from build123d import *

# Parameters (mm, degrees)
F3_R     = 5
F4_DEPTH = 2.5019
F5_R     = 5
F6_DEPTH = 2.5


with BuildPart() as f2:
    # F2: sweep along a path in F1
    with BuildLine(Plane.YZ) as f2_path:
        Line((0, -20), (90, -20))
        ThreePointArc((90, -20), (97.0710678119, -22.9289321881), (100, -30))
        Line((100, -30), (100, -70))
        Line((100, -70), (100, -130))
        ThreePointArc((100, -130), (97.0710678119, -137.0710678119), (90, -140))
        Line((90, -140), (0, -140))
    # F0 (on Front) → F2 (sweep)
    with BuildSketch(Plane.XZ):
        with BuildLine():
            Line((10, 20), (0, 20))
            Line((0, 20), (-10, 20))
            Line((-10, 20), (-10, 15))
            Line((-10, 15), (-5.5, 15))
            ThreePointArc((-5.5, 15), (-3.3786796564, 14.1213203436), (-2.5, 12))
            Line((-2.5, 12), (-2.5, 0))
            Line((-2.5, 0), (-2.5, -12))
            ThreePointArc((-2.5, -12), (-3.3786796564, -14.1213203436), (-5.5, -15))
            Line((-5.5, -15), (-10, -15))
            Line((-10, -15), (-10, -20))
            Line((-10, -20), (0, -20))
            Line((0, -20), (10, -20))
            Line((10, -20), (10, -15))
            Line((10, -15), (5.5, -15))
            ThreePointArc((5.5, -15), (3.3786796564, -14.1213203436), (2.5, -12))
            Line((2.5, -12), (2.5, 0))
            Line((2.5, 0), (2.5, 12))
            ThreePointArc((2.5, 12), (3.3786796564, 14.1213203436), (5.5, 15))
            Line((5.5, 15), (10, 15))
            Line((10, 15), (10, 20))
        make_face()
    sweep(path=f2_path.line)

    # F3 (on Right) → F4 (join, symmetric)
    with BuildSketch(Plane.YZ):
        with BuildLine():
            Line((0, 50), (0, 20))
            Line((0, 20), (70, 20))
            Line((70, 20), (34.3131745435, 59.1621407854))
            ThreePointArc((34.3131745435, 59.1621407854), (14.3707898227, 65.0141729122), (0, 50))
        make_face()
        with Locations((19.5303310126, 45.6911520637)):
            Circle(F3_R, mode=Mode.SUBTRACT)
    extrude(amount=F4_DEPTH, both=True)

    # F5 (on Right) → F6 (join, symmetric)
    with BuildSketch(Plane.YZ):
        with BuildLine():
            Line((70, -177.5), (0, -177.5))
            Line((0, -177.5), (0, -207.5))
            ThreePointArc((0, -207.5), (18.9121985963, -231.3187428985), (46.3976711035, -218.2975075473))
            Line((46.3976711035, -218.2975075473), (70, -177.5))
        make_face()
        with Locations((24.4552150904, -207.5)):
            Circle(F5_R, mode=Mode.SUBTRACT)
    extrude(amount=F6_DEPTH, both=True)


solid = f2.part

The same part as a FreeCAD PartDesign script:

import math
import FreeCAD as App
import Part
import Sketcher
from FreeCAD import Vector
Q = App.Units.Quantity

doc = App.newDocument("Part")
body = doc.addObject("PartDesign::Body", "Body")

sketch1 = body.newObject("Sketcher::SketchObject", "Sketch")
sketch1.AttachmentSupport = (doc.getObject("XZ_Plane"), [""])
sketch1.MapMode = "FlatFace"
sketch1.addGeometry(Part.LineSegment(Vector(10, 20, 0), Vector(-10, 20, 0)), False)
sketch1.addGeometry(Part.LineSegment(Vector(-10, 20, 0), Vector(-10, 15, 0)), False)
sketch1.addGeometry(Part.LineSegment(Vector(-10, 15, 0), Vector(-5.5, 15, 0)), False)
sketch1.addGeometry(Part.ArcOfCircle(Part.Circle(Vector(-5.5, 12, 0), Vector(0, 0, 1), 3), math.radians(0), math.radians(90)), False)
sketch1.addGeometry(Part.LineSegment(Vector(-2.5, 12, 0), Vector(-2.5, -12, 0)), False)
sketch1.addGeometry(Part.ArcOfCircle(Part.Circle(Vector(-5.5, -12, 0), Vector(0, 0, 1), 3), math.radians(-90), math.radians(0)), False)
sketch1.addGeometry(Part.LineSegment(Vector(-5.5, -15, 0), Vector(-10, -15, 0)), False)
sketch1.addGeometry(Part.LineSegment(Vector(-10, -15, 0), Vector(-10, -20, 0)), False)
sketch1.addGeometry(Part.LineSegment(Vector(-10, -20, 0), Vector(10, -20, 0)), False)
sketch1.addGeometry(Part.LineSegment(Vector(10, -20, 0), Vector(10, -15, 0)), False)
sketch1.addGeometry(Part.LineSegment(Vector(10, -15, 0), Vector(5.5, -15, 0)), False)
sketch1.addGeometry(Part.ArcOfCircle(Part.Circle(Vector(5.5, -12, 0), Vector(0, 0, 1), 3), math.radians(180), math.radians(270)), False)
sketch1.addGeometry(Part.LineSegment(Vector(2.5, -12, 0), Vector(2.5, 12, 0)), False)
sketch1.addGeometry(Part.ArcOfCircle(Part.Circle(Vector(5.5, 12, 0), Vector(0, 0, 1), 3), math.radians(90), math.radians(180)), False)
sketch1.addGeometry(Part.LineSegment(Vector(5.5, 15, 0), Vector(10, 15, 0)), False)
sketch1.addGeometry(Part.LineSegment(Vector(10, 15, 0), Vector(10, 20, 0)), False)
sketch1.addConstraint(Sketcher.Constraint("Coincident", 0, 2, 1, 1))
sketch1.addConstraint(Sketcher.Constraint("Coincident", 1, 2, 2, 1))
sketch1.addConstraint(Sketcher.Constraint("Tangent", 2, 2, 3, 2))
sketch1.addConstraint(Sketcher.Constraint("Tangent", 3, 1, 4, 1))
sketch1.addConstraint(Sketcher.Constraint("Tangent", 4, 2, 5, 2))
sketch1.addConstraint(Sketcher.Constraint("Tangent", 5, 1, 6, 1))
sketch1.addConstraint(Sketcher.Constraint("Coincident", 6, 2, 7, 1))
sketch1.addConstraint(Sketcher.Constraint("Coincident", 7, 2, 8, 1))
sketch1.addConstraint(Sketcher.Constraint("Coincident", 8, 2, 9, 1))
sketch1.addConstraint(Sketcher.Constraint("Coincident", 9, 2, 10, 1))
sketch1.addConstraint(Sketcher.Constraint("Tangent", 10, 2, 11, 2))
sketch1.addConstraint(Sketcher.Constraint("Tangent", 11, 1, 12, 1))
sketch1.addConstraint(Sketcher.Constraint("Tangent", 12, 2, 13, 2))
sketch1.addConstraint(Sketcher.Constraint("Tangent", 13, 1, 14, 1))
sketch1.addConstraint(Sketcher.Constraint("Coincident", 14, 2, 15, 1))
sketch1.addConstraint(Sketcher.Constraint("Coincident", 15, 2, 0, 1))
sketch1.addConstraint(Sketcher.Constraint("Horizontal", 0))
sketch1.addConstraint(Sketcher.Constraint("Vertical", 1))
sketch1.addConstraint(Sketcher.Constraint("Horizontal", 2))
sketch1.addConstraint(Sketcher.Constraint("Vertical", 4))
sketch1.addConstraint(Sketcher.Constraint("Horizontal", 6))
sketch1.addConstraint(Sketcher.Constraint("Vertical", 7))
sketch1.addConstraint(Sketcher.Constraint("Horizontal", 8))
sketch1.addConstraint(Sketcher.Constraint("Vertical", 9))
sketch1.addConstraint(Sketcher.Constraint("Horizontal", 10))
sketch1.addConstraint(Sketcher.Constraint("Vertical", 12))
sketch1.addConstraint(Sketcher.Constraint("Horizontal", 14))
sketch1.addConstraint(Sketcher.Constraint("Vertical", 15))
sketch1.addConstraint(Sketcher.Constraint("Equal", 3, 5))
sketch1.addConstraint(Sketcher.Constraint("Equal", 5, 11))
sketch1.addConstraint(Sketcher.Constraint("Equal", 11, 13))
sketch1.addConstraint(Sketcher.Constraint("Symmetric", 3, 3, 11, 3, -1, 1))
sketch1.addConstraint(Sketcher.Constraint("Symmetric", 0, 2, 8, 2, -1, 1))
sketch1.addConstraint(Sketcher.Constraint("Symmetric", 6, 2, 14, 2, -1, 1))
sketch1.addConstraint(Sketcher.Constraint("Symmetric", 6, 2, 9, 2, -2))
sketch1.addConstraint(Sketcher.Constraint("Radius", 3, Q("3 mm")))
sketch1.addConstraint(Sketcher.Constraint("DistanceX", 0, 2, 0, 1, Q("20 mm")))
sketch1.addConstraint(Sketcher.Constraint("DistanceY", 1, 2, 1, 1, Q("5 mm")))
sketch1.addConstraint(Sketcher.Constraint("DistanceY", 4, 2, 4, 1, Q("24 mm")))
sketch1.addConstraint(Sketcher.Constraint("DistanceX", 2, 1, 2, 2, Q("4.5 mm")))

sketch2 = body.newObject("Sketcher::SketchObject", "Sketch001")
sketch2.AttachmentSupport = (doc.getObject("YZ_Plane"), [""])
sketch2.MapMode = "FlatFace"
sketch2.addGeometry(Part.LineSegment(Vector(0, -20, 0), Vector(90, -20, 0)), False)
sketch2.addGeometry(Part.ArcOfCircle(Part.Circle(Vector(90, -30, 0), Vector(0, 0, 1), 10), math.radians(0), math.radians(90)), False)
sketch2.addGeometry(Part.LineSegment(Vector(100, -30, 0), Vector(100, -130, 0)), False)
sketch2.addGeometry(Part.ArcOfCircle(Part.Circle(Vector(90, -130, 0), Vector(0, 0, 1), 10), math.radians(-90), math.radians(0)), False)
sketch2.addGeometry(Part.LineSegment(Vector(90, -140, 0), Vector(0, -140, 0)), False)
sketch2.addConstraint(Sketcher.Constraint("Tangent", 0, 2, 1, 2))
sketch2.addConstraint(Sketcher.Constraint("Tangent", 1, 1, 2, 1))
sketch2.addConstraint(Sketcher.Constraint("Tangent", 2, 2, 3, 2))
sketch2.addConstraint(Sketcher.Constraint("Tangent", 3, 1, 4, 1))
sketch2.addConstraint(Sketcher.Constraint("Horizontal", 0))
sketch2.addConstraint(Sketcher.Constraint("Vertical", 2))
sketch2.addConstraint(Sketcher.Constraint("Horizontal", 4))
sketch2.addConstraint(Sketcher.Constraint("Equal", 1, 3))
sketch2.addConstraint(Sketcher.Constraint("PointOnObject", 0, 1, -2))
sketch2.addConstraint(Sketcher.Constraint("PointOnObject", 4, 2, -2))
sketch2.addConstraint(Sketcher.Constraint("Radius", 1, Q("10 mm")))
sketch2.addConstraint(Sketcher.Constraint("DistanceX", 0, 1, 0, 2, Q("90 mm")))
sketch2.addConstraint(Sketcher.Constraint("DistanceY", 2, 2, 2, 1, Q("100 mm")))
sketch2.addConstraint(Sketcher.Constraint("DistanceY", 1, 3, -1, 1, Q("30 mm")))
doc.recompute()

additivepipe = body.newObject("PartDesign::AdditivePipe", "AdditivePipe")
additivepipe.Profile = sketch1
additivepipe.Spine = (sketch2, ["Edge1", "Edge2", "Edge3", "Edge4", "Edge5"])

sketch3 = body.newObject("Sketcher::SketchObject", "Sketch002")
sketch3.AttachmentSupport = (doc.getObject("YZ_Plane"), [""])
sketch3.MapMode = "FlatFace"
sketch3.addGeometry(Part.LineSegment(Vector(0, 50, 0), Vector(0, 20, 0)), False)
sketch3.addGeometry(Part.LineSegment(Vector(0, 20, 0), Vector(70, 20, 0)), False)
sketch3.addGeometry(Part.LineSegment(Vector(70, 20, 0), Vector(34, 59, 0)), False)
sketch3.addGeometry(Part.ArcOfCircle(Part.Circle(Vector(20, 46, 0), Vector(0, 0, 1), 20), math.radians(42), math.radians(168)), False)
sketch3.addGeometry(Part.Circle(Vector(20, 46, 0), Vector(0, 0, 1), 5), False)
sketch3.addConstraint(Sketcher.Constraint("Coincident", 0, 2, 1, 1))
sketch3.addConstraint(Sketcher.Constraint("Coincident", 1, 2, 2, 1))
sketch3.addConstraint(Sketcher.Constraint("Tangent", 2, 2, 3, 1))
sketch3.addConstraint(Sketcher.Constraint("Coincident", 3, 2, 0, 1))
sketch3.addConstraint(Sketcher.Constraint("Vertical", 0))
sketch3.addConstraint(Sketcher.Constraint("Horizontal", 1))
sketch3.addConstraint(Sketcher.Constraint("Coincident", 4, 3, 3, 3))
sketch3.addConstraint(Sketcher.Constraint("PointOnObject", 0, 2, -2))
sketch3.addConstraint(Sketcher.Constraint("Diameter", 4, Q("10 mm")))
sketch3.addConstraint(Sketcher.Constraint("Radius", 3, Q("20 mm")))
sketch3.addConstraint(Sketcher.Constraint("DistanceX", 1, 1, 1, 2, Q("70 mm")))
sketch3.addConstraint(Sketcher.Constraint("DistanceY", 0, 2, 0, 1, Q("30 mm")))
sketch3.addConstraint(Sketcher.Constraint("DistanceY", -1, 1, 0, 2, Q("20 mm")))
sketch3.addConstraint(Sketcher.Constraint("Distance", 2, Q("52.983231 mm")))
pad1 = body.newObject("PartDesign::Pad", "Pad")
pad1.Profile = sketch3
pad1.Length = 5.0038
pad1.Midplane = True

sketch4 = body.newObject("Sketcher::SketchObject", "Sketch003")
sketch4.AttachmentSupport = (doc.getObject("YZ_Plane"), [""])
sketch4.MapMode = "FlatFace"
sketch4.addGeometry(Part.LineSegment(Vector(70, -178, 0), Vector(0, -178, 0)), False)
sketch4.addGeometry(Part.LineSegment(Vector(0, -178, 0), Vector(0, -208, 0)), False)
sketch4.addGeometry(Part.ArcOfCircle(Part.Circle(Vector(24, -208, 0), Vector(0, 0, 1), 24), math.radians(180), math.radians(334)), False)
sketch4.addGeometry(Part.LineSegment(Vector(46, -218, 0), Vector(70, -178, 0)), False)
sketch4.addGeometry(Part.Circle(Vector(24, -208, 0), Vector(0, 0, 1), 5), False)
sketch4.addConstraint(Sketcher.Constraint("Coincident", 0, 2, 1, 1))
sketch4.addConstraint(Sketcher.Constraint("Tangent", 1, 2, 2, 1))
sketch4.addConstraint(Sketcher.Constraint("Coincident", 2, 2, 3, 1))
sketch4.addConstraint(Sketcher.Constraint("Coincident", 3, 2, 0, 1))
sketch4.addConstraint(Sketcher.Constraint("Horizontal", 0))
sketch4.addConstraint(Sketcher.Constraint("Vertical", 1))
sketch4.addConstraint(Sketcher.Constraint("Coincident", 4, 3, 2, 3))
sketch4.addConstraint(Sketcher.Constraint("PointOnObject", 0, 2, -2))
sketch4.addConstraint(Sketcher.Constraint("Diameter", 4, Q("10 mm")))
sketch4.addConstraint(Sketcher.Constraint("DistanceX", 0, 2, 0, 1, Q("70 mm")))
sketch4.addConstraint(Sketcher.Constraint("DistanceY", 1, 2, 1, 1, Q("30 mm")))
sketch4.addConstraint(Sketcher.Constraint("DistanceY", 2, 3, -1, 1, Q("207.5 mm")))
sketch4.addConstraint(Sketcher.Constraint("Radius", 2, Q("24.455215 mm")))
sketch4.addConstraint(Sketcher.Constraint("Distance", 3, Q("47.132861 mm")))
pad2 = body.newObject("PartDesign::Pad", "Pad001")
pad2.Profile = sketch4
pad2.Length = 5
pad2.Midplane = True

doc.recompute()
